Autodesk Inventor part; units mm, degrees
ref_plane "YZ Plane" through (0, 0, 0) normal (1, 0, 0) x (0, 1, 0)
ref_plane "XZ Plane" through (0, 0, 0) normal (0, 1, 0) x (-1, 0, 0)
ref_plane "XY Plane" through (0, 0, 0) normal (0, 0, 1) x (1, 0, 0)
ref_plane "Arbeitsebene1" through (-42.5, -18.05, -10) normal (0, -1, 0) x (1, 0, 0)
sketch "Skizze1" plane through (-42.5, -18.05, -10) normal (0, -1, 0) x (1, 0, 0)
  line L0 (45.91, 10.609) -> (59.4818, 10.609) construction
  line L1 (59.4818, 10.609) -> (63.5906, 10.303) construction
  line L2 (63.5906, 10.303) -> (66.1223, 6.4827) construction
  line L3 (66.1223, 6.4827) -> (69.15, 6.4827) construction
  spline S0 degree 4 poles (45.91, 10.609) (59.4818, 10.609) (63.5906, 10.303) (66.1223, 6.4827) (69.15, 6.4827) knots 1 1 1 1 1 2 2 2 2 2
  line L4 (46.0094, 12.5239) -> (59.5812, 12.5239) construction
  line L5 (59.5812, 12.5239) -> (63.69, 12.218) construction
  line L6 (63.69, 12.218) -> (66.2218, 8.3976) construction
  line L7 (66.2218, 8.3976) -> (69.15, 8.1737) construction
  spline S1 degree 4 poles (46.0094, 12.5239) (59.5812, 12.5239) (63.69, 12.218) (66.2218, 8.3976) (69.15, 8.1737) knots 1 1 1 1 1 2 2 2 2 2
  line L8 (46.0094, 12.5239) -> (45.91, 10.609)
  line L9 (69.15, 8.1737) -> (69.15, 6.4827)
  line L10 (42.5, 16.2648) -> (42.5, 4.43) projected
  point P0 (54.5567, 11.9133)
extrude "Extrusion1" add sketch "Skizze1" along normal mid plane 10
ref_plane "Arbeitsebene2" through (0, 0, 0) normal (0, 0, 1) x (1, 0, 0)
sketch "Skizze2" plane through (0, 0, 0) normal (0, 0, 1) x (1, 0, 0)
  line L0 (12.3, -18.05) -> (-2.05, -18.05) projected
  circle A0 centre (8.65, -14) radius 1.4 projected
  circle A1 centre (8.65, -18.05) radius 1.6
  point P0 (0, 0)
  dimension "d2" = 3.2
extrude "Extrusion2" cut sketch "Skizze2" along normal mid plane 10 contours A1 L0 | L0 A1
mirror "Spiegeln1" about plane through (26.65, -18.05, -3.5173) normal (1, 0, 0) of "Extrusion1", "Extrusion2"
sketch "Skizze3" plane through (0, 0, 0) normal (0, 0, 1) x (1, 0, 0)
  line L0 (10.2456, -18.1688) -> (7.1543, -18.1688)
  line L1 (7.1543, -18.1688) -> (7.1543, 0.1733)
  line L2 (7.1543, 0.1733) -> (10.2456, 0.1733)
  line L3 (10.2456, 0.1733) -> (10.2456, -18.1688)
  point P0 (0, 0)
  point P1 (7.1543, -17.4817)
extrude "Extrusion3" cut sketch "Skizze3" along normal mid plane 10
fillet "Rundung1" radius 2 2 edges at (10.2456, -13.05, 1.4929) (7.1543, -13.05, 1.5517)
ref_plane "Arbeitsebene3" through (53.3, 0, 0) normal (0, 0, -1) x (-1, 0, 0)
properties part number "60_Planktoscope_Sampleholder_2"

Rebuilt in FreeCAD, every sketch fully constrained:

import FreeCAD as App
import Part
import Sketcher
from FreeCAD import Vector


def edges_at(feature, points):
    """Names of the edges that pass closest to the given points."""
    edges = feature.Shape.Edges
    near = lambda p: min(range(len(edges)), key=lambda i: edges[i].distToShape(Part.Vertex(*p))[0])
    return sorted({f"Edge{near(p) + 1}" for p in points})


def add_polygon(sketch, points):
    """Adds a closed chain of lines whose ends are joined by coincident constraints."""
    first, n = sketch.GeometryCount, len(points)
    for a, b in zip(points, points[1:] + points[:1]):
        sketch.addGeometry(Part.LineSegment(App.Vector(*a, 0), App.Vector(*b, 0)), False)
    for i in range(n):
        sketch.addConstraint(Sketcher.Constraint("Coincident", first + i, 2, first + (i + 1) % n, 1))

doc = App.newDocument("Part")
params = doc.addObject("Spreadsheet::Sheet", "Params")
for row, (alias, value) in enumerate([
    ("pad1_length", "10 mm"),
    ("sketch2_diameter", "3.2 mm"),
    ("pocket1_length", "10 mm"),
    ("pocket2_length", "10 mm"),
    ("fillet_radius", "2 mm"),
], start=1):
    params.set(f"A{row}", alias)
    params.set(f"B{row}", "=" + value)
    params.setAlias(f"B{row}", alias)

body = doc.addObject("PartDesign::Body", "Body")

# Sketch on XZ plane
sketch1 = body.newObject("Sketcher::SketchObject", "Sketch")
sketch1.AttachmentSupport = (doc.getObject("XZ_Plane"), [""])
sketch1.MapMode = "FlatFace"
sketch1.AttachmentOffset = App.Placement(Vector(0, 0, 18.05), App.Rotation())
sketch1.addGeometry([
    Part.LineSegment(Vector(3.5094, 2.5239, 0), Vector(3.41, 0.609, 0)),
    Part.BSplineCurve([Vector(3.41, 0.609, 0), Vector(16.9818, 0.609, 0), Vector(21.0906, 0.303, 0), Vector(23.6223, -3.5173, 0), Vector(26.65, -3.5173, 0)], [5, 5], [1, 2], False, 4, [1, 1, 1, 1, 1], False),
    Part.LineSegment(Vector(26.65, -3.5173, 0), Vector(26.65, -1.8263, 0)),
    Part.BSplineCurve([Vector(3.5094, 2.5239, 0), Vector(17.0812, 2.5239, 0), Vector(21.19, 2.218, 0), Vector(23.7218, -1.6024, 0), Vector(26.65, -1.8263, 0)], [5, 5], [1, 2], False, 4, [1, 1, 1, 1, 1], False),
], False)
sketch1.addConstraint([
    Sketcher.Constraint("Block", 1),
    Sketcher.Constraint("Block", 3),
    Sketcher.Constraint("Coincident", 0, 2, 1, 1),
    Sketcher.Constraint("Coincident", 1, 2, 2, 1),
    Sketcher.Constraint("Coincident", 2, 2, 3, 2),
    Sketcher.Constraint("Coincident", 3, 1, 0, 1),
])
pad1 = body.newObject("PartDesign::Pad", "Pad")
pad1.Profile = sketch1
pad1.setExpression("Length", "Params.pad1_length")
pad1.Midplane = True

# Sketch on XY plane
sketch2 = body.newObject("Sketcher::SketchObject", "Sketch001")
sketch2.AttachmentSupport = (doc.getObject("XY_Plane"), [""])
sketch2.MapMode = "FlatFace"
sketch2.addGeometry(Part.Circle(Vector(8.65, -18.05, 0), Vector(0, 0, 1), 1.6), False)
sketch2.addConstraint([
    Sketcher.Constraint("Diameter", 0, 3.2),
    Sketcher.Constraint("DistanceX", -1, 1, 0, 3, 8.65),
    Sketcher.Constraint("DistanceY", 0, 3, -1, 1, 18.05),
])
sketch2.setExpression("Constraints[0]", "Params.sketch2_diameter")
pocket1 = body.newObject("PartDesign::Pocket", "Pocket")
pocket1.Profile = sketch2
pocket1.setExpression("Length", "Params.pocket1_length")
pocket1.Midplane = True
doc.recompute()

datumplane = body.newObject("PartDesign::Plane", "DatumPlane")
datumplane.AttachmentSupport = (doc.getObject("YZ_Plane"), [""])
datumplane.MapMode = "FlatFace"
datumplane.AttachmentOffset = App.Placement(Vector(0, 0, 26.65), App.Rotation())
mirrored = body.newObject("PartDesign::Mirrored", "Mirrored")
mirrored.Originals = [pad1, pocket1]
mirrored.MirrorPlane = (datumplane, [""])
body.Tip = mirrored

# Sketch on XY plane
sketch3 = body.newObject("Sketcher::SketchObject", "Sketch002")
sketch3.AttachmentSupport = (doc.getObject("XY_Plane"), [""])
sketch3.MapMode = "FlatFace"
add_polygon(sketch3, [(7.1543, -18.1688), (10.2456, -18.1688), (10.2456, 0.1733), (7.1543, 0.1733)])  # lines 0-3
sketch3.addConstraint([
    Sketcher.Constraint("Horizontal", 0),
    Sketcher.Constraint("Vertical", 1),
    Sketcher.Constraint("Horizontal", 2),
    Sketcher.Constraint("Vertical", 3),
    Sketcher.Constraint("DistanceY", 1, 1, 1, 2, 18.342),
    Sketcher.Constraint("DistanceX", 0, 1, 0, 2, 3.0913),
    Sketcher.Constraint("DistanceX", -1, 1, 0, 2, 10.2456),
    Sketcher.Constraint("DistanceY", 0, 2, -1, 1, 18.1688),
])
pocket2 = body.newObject("PartDesign::Pocket", "Pocket001")
pocket2.Profile = sketch3
pocket2.setExpression("Length", "Params.pocket2_length")
pocket2.Midplane = True
doc.recompute()

fillet = body.newObject("PartDesign::Fillet", "Fillet")
fillet.Base = (pocket2, edges_at(pocket2, [(10.246, -13.05, 1.493), (7.154, -13.05, 1.552)]))
fillet.setExpression("Radius", "Params.fillet_radius")

doc.recompute()
